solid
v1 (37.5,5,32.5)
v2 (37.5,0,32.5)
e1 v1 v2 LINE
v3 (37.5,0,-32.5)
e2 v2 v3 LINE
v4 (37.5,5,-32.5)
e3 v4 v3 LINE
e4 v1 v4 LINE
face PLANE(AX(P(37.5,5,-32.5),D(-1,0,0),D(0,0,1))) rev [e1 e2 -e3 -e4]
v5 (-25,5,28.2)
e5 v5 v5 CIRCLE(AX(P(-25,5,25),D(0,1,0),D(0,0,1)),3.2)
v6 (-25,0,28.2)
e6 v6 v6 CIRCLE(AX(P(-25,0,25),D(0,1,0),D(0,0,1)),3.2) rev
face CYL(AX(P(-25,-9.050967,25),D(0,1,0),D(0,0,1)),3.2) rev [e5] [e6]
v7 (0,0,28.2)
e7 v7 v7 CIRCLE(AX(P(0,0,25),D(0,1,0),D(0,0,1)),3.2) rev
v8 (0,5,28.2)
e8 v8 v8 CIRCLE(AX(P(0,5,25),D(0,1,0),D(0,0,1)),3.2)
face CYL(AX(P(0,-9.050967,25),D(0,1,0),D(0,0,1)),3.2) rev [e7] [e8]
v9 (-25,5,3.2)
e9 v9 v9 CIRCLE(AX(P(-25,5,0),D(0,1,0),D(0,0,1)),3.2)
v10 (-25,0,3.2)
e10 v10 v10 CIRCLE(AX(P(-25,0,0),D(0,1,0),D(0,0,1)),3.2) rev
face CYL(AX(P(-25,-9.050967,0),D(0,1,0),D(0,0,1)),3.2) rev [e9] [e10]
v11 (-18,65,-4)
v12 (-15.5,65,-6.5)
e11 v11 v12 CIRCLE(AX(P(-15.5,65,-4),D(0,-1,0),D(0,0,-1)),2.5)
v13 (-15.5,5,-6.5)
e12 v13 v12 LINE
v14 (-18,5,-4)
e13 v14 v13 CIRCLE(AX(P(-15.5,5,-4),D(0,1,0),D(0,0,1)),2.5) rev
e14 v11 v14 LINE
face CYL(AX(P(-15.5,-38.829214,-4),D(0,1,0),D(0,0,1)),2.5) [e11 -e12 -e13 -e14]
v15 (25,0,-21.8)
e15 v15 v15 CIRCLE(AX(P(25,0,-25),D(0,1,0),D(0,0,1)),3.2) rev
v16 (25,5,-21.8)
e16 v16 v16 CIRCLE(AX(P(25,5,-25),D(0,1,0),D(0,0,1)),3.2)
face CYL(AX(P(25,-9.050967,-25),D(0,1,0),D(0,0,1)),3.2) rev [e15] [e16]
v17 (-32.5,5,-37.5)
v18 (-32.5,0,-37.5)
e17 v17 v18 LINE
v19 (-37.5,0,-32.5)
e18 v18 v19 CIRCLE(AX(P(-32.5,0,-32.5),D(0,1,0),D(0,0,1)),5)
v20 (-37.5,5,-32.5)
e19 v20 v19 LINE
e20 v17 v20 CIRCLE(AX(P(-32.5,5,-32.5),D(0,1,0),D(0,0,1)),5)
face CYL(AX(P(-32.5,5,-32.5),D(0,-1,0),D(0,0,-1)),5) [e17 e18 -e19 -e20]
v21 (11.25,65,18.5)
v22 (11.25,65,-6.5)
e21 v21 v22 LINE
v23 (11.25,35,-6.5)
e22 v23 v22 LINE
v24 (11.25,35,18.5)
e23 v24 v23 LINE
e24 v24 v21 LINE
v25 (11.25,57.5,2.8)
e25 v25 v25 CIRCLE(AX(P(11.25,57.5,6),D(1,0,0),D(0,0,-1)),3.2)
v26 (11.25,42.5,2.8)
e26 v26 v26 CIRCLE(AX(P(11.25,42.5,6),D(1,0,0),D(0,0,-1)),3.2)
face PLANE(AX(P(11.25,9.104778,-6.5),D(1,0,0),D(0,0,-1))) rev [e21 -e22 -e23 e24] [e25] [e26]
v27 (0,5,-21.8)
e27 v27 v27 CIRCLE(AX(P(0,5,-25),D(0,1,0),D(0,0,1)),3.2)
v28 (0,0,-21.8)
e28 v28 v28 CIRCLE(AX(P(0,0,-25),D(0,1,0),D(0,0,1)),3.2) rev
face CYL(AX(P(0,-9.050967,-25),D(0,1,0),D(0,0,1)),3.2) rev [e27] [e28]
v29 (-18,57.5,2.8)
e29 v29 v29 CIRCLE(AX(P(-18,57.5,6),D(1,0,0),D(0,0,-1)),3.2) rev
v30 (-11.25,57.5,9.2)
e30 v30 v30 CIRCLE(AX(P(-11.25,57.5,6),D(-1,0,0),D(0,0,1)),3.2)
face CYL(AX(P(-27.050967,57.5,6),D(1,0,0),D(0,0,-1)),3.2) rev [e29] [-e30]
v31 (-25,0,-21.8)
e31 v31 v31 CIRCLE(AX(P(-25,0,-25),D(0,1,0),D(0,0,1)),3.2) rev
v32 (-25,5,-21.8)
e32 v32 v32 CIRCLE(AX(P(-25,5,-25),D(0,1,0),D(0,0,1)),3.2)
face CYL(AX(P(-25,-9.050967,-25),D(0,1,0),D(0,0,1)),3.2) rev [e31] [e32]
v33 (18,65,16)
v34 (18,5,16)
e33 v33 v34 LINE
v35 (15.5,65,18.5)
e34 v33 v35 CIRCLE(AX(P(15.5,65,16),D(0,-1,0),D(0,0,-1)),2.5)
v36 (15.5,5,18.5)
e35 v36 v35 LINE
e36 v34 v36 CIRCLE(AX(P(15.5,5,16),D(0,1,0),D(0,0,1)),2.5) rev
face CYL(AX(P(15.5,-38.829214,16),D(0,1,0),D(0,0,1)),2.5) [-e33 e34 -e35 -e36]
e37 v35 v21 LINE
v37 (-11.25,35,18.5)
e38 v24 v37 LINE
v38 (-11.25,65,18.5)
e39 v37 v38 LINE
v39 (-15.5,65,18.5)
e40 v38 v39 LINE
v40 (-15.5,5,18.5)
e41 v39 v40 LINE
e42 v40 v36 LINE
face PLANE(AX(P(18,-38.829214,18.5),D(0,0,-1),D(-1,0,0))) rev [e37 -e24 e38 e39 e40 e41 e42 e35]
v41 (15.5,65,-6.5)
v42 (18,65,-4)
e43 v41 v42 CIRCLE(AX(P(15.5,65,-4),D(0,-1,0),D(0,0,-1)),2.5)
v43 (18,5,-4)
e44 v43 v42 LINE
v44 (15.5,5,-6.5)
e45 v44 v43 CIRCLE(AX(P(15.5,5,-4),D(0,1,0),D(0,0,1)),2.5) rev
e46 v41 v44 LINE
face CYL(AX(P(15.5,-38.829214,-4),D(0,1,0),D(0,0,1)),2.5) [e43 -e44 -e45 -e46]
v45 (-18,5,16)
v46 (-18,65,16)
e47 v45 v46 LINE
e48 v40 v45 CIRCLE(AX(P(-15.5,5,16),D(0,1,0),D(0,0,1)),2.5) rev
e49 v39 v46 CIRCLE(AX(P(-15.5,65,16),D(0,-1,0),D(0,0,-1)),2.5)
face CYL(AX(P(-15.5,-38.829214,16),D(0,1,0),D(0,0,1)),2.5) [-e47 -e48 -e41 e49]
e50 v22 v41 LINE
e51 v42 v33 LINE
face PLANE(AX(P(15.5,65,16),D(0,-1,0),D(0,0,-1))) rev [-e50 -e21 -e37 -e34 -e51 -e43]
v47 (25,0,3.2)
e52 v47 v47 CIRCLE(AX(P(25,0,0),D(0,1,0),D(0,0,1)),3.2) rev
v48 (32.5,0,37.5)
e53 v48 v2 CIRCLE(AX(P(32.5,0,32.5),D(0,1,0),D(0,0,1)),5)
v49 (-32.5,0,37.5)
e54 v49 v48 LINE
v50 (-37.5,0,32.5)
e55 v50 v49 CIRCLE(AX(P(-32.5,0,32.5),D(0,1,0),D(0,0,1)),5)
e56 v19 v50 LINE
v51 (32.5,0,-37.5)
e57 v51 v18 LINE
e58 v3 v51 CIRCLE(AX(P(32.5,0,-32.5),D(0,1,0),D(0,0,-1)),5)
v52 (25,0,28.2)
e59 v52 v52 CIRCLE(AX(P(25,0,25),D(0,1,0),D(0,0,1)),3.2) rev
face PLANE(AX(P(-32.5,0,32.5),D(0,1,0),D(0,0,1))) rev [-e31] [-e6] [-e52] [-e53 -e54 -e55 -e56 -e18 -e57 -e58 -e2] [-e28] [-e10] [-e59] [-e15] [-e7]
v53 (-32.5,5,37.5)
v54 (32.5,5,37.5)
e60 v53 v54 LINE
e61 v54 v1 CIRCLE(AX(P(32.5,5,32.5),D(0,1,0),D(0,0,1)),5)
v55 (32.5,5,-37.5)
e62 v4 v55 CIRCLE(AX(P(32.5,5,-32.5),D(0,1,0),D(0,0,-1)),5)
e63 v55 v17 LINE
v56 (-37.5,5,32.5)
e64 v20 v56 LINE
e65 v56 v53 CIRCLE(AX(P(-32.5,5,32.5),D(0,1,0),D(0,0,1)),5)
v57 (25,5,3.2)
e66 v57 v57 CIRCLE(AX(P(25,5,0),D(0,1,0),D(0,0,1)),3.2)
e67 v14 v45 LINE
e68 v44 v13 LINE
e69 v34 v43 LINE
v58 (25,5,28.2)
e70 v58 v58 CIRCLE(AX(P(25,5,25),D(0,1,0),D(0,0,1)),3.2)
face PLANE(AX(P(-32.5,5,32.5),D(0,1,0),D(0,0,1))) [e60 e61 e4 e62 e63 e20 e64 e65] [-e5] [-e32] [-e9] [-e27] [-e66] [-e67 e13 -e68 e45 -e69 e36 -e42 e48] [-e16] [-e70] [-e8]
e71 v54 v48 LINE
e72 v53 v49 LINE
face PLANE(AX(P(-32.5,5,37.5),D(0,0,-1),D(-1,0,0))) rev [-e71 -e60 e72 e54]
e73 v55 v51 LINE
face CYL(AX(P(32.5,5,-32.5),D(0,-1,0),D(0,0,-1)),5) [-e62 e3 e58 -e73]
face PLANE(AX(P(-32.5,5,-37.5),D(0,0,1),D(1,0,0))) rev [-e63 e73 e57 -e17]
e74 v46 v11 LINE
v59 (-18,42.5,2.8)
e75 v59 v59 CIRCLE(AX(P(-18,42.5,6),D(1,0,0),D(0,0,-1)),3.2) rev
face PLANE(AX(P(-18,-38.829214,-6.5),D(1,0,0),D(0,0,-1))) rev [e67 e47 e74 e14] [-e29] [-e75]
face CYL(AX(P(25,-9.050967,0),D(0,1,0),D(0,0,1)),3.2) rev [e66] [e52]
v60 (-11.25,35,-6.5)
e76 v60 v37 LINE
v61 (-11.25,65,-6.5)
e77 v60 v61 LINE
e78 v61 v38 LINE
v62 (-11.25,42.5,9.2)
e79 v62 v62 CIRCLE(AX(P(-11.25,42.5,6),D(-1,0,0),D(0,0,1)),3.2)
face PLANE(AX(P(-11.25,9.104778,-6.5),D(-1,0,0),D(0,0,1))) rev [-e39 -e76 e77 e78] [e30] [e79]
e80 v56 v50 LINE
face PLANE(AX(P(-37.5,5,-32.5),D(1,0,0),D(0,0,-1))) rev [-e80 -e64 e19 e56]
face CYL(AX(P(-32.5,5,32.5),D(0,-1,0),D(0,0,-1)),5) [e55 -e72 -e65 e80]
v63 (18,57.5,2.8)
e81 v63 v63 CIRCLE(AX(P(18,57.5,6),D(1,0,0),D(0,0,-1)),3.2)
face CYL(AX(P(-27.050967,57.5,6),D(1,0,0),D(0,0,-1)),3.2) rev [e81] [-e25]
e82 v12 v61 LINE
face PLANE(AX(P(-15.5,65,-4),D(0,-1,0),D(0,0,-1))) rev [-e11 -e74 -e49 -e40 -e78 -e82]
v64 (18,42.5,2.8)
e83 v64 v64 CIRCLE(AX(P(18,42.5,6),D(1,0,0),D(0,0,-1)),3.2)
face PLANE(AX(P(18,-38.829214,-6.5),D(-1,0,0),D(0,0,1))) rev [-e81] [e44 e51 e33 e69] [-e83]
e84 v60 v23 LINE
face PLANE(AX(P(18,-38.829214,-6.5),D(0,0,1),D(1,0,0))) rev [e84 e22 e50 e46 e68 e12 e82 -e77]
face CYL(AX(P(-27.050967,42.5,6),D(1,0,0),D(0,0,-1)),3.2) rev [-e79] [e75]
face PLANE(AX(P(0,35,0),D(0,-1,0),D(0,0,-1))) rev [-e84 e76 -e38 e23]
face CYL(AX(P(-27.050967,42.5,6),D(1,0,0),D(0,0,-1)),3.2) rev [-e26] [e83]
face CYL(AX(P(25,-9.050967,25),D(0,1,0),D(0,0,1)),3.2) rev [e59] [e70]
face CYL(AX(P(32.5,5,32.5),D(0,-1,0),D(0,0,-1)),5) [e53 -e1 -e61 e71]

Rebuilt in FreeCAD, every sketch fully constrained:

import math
import FreeCAD as App
import Part
import Sketcher
from FreeCAD import Vector


def edges_at(feature, points):
    """Names of the edges that pass closest to the given points."""
    edges = feature.Shape.Edges
    near = lambda p: min(range(len(edges)), key=lambda i: edges[i].distToShape(Part.Vertex(*p))[0])
    return sorted({f"Edge{near(p) + 1}" for p in points})


def add_polygon(sketch, points):
    """Adds a closed chain of lines whose ends are joined by coincident constraints."""
    first, n = sketch.GeometryCount, len(points)
    for a, b in zip(points, points[1:] + points[:1]):
        sketch.addGeometry(Part.LineSegment(App.Vector(*a, 0), App.Vector(*b, 0)), False)
    for i in range(n):
        sketch.addConstraint(Sketcher.Constraint("Coincident", first + i, 2, first + (i + 1) % n, 1))

doc = App.newDocument("Part")
body = doc.addObject("PartDesign::Body", "Body")

# Sketch on XZ plane
sketch1 = body.newObject("Sketcher::SketchObject", "Sketch")
sketch1.AttachmentSupport = (doc.getObject("XZ_Plane"), [""])
sketch1.MapMode = "FlatFace"
sketch1.addGeometry(Part.LineSegment(Vector(32, -38, 0), Vector(-32, -38, 0)), False)
sketch1.addGeometry(Part.ArcOfCircle(Part.Circle(Vector(-32, -32, 0), Vector(0, 0, 1), 5), math.radians(180), math.radians(270)), False)
sketch1.addGeometry(Part.LineSegment(Vector(-38, -32, 0), Vector(-38, 32, 0)), False)
sketch1.addGeometry(Part.ArcOfCircle(Part.Circle(Vector(-32, 32, 0), Vector(0, 0, 1), 5), math.radians(90), math.radians(180)), False)
sketch1.addGeometry(Part.LineSegment(Vector(-32, 38, 0), Vector(32, 38, 0)), False)
sketch1.addGeometry(Part.ArcOfCircle(Part.Circle(Vector(32, 32, 0), Vector(0, 0, 1), 5), math.radians(0), math.radians(90)), False)
sketch1.addGeometry(Part.LineSegment(Vector(38, 32, 0), Vector(38, -32, 0)), False)
sketch1.addGeometry(Part.ArcOfCircle(Part.Circle(Vector(32, -32, 0), Vector(0, 0, 1), 5), math.radians(-90), math.radians(0)), False)
sketch1.addConstraint(Sketcher.Constraint("Tangent", 0, 2, 1, 2))
sketch1.addConstraint(Sketcher.Constraint("Tangent", 1, 1, 2, 1))
sketch1.addConstraint(Sketcher.Constraint("Tangent", 2, 2, 3, 2))
sketch1.addConstraint(Sketcher.Constraint("Tangent", 3, 1, 4, 1))
sketch1.addConstraint(Sketcher.Constraint("Tangent", 4, 2, 5, 2))
sketch1.addConstraint(Sketcher.Constraint("Tangent", 5, 1, 6, 1))
sketch1.addConstraint(Sketcher.Constraint("Tangent", 6, 2, 7, 2))
sketch1.addConstraint(Sketcher.Constraint("Tangent", 7, 1, 0, 1))
sketch1.addConstraint(Sketcher.Constraint("Horizontal", 0))
sketch1.addConstraint(Sketcher.Constraint("Vertical", 2))
sketch1.addConstraint(Sketcher.Constraint("Horizontal", 4))
sketch1.addConstraint(Sketcher.Constraint("Vertical", 6))
sketch1.addConstraint(Sketcher.Constraint("Equal", 1, 3))
sketch1.addConstraint(Sketcher.Constraint("Equal", 3, 5))
sketch1.addConstraint(Sketcher.Constraint("Equal", 5, 7))
sketch1.addConstraint(Sketcher.Constraint("Symmetric", 1, 3, 5, 3, -1, 1))
sketch1.addConstraint(Sketcher.Constraint("Equal", 4, 2))
sketch1.addConstraint(Sketcher.Constraint("Radius", 1, 5.0))
sketch1.addConstraint(Sketcher.Constraint("DistanceX", 0, 2, 0, 1, 65.0))
pad1 = body.newObject("PartDesign::Pad", "Pad")
pad1.Profile = sketch1
pad1.Length = 5
pad1.Reversed = True

# Sketch on XZ plane
sketch2 = body.newObject("Sketcher::SketchObject", "Sketch001")
sketch2.AttachmentSupport = (doc.getObject("XZ_Plane"), [""])
sketch2.MapMode = "FlatFace"
sketch2.AttachmentOffset = App.Placement(Vector(0, 0, -5), App.Rotation())
sketch2.addGeometry(Part.Circle(Vector(0, -25, 0), Vector(0, 0, 1), 3.2), False)
sketch2.addGeometry(Part.Circle(Vector(-25, -25, 0), Vector(0, 0, 1), 3.2), False)
sketch2.addGeometry(Part.Circle(Vector(-25, 0, 0), Vector(0, 0, 1), 3.2), False)
sketch2.addGeometry(Part.Circle(Vector(-25, 25, 0), Vector(0, 0, 1), 3.2), False)
sketch2.addGeometry(Part.Circle(Vector(0, 25, 0), Vector(0, 0, 1), 3.2), False)
sketch2.addGeometry(Part.Circle(Vector(25, 25, 0), Vector(0, 0, 1), 3.2), False)
sketch2.addGeometry(Part.Circle(Vector(25, 0, 0), Vector(0, 0, 1), 3.2), False)
sketch2.addGeometry(Part.Circle(Vector(25, -25, 0), Vector(0, 0, 1), 3.2), False)
sketch2.addConstraint(Sketcher.Constraint("Equal", 0, 1))
sketch2.addConstraint(Sketcher.Constraint("Equal", 1, 2))
sketch2.addConstraint(Sketcher.Constraint("Equal", 2, 3))
sketch2.addConstraint(Sketcher.Constraint("Equal", 3, 4))
sketch2.addConstraint(Sketcher.Constraint("Equal", 4, 5))
sketch2.addConstraint(Sketcher.Constraint("Equal", 5, 6))
sketch2.addConstraint(Sketcher.Constraint("Equal", 6, 7))
sketch2.addConstraint(Sketcher.Constraint("Symmetric", 0, 3, 4, 3, -1, 1))
sketch2.addConstraint(Sketcher.Constraint("Symmetric", 1, 3, 5, 3, -1, 1))
sketch2.addConstraint(Sketcher.Constraint("Symmetric", 2, 3, 6, 3, -1, 1))
sketch2.addConstraint(Sketcher.Constraint("Symmetric", 3, 3, 7, 3, -1, 1))
sketch2.addConstraint(Sketcher.Constraint("Symmetric", 3, 3, 5, 3, -2))
sketch2.addConstraint(Sketcher.Constraint("PointOnObject", 0, 3, -2))
sketch2.addConstraint(Sketcher.Constraint("PointOnObject", 2, 3, -1))
sketch2.addConstraint(Sketcher.Constraint("Horizontal", 0, 3, 1, 3))
sketch2.addConstraint(Sketcher.Constraint("Vertical", 1, 3, 2, 3))
sketch2.addConstraint(Sketcher.Constraint("Diameter", 0, 6.4))
sketch2.addConstraint(Sketcher.Constraint("DistanceY", 0, 3, -1, 1, 25.0))
sketch2.addConstraint(Sketcher.Constraint("DistanceX", 1, 3, -1, 1, 25.0))
pocket1 = body.newObject("PartDesign::Pocket", "Pocket")
pocket1.Profile = sketch2
pocket1.Length = 5
pocket1.Reversed = True

# Sketch on XZ plane
sketch3 = body.newObject("Sketcher::SketchObject", "Sketch002")
sketch3.AttachmentSupport = (doc.getObject("XZ_Plane"), [""])
sketch3.MapMode = "FlatFace"
sketch3.AttachmentOffset = App.Placement(Vector(0, 0, -35), App.Rotation())
add_polygon(sketch3, [(18, -6), (18, 18), (-18, 18), (-18, -6)])  # lines 0-3
sketch3.addConstraint(Sketcher.Constraint("Vertical", 0))
sketch3.addConstraint(Sketcher.Constraint("Horizontal", 1))
sketch3.addConstraint(Sketcher.Constraint("Vertical", 2))
sketch3.addConstraint(Sketcher.Constraint("Horizontal", 3))
sketch3.addConstraint(Sketcher.Constraint("DistanceX", 1, 2, 1, 1, 36.0))
sketch3.addConstraint(Sketcher.Constraint("DistanceY", 0, 1, 0, 2, 25.0))
sketch3.addConstraint(Sketcher.Constraint("DistanceX", -1, 1, 0, 2, 18.0))
sketch3.addConstraint(Sketcher.Constraint("DistanceY", -1, 1, 0, 2, 18.5))
pad2 = body.newObject("PartDesign::Pad", "Pad001")
pad2.Profile = sketch3
pad2.Length = 30
doc.recompute()

fillet = body.newObject("PartDesign::Fillet", "Fillet")
fillet.Base = (pad2, edges_at(pad2, [
    (-18, 20, -6.5),
    (-18, 20, 18.5),
    (18, 20, 18.5),
    (18, 20, -6.5),
]))
fillet.Radius = 2.5

# Sketch on XZ plane
sketch4 = body.newObject("Sketcher::SketchObject", "Sketch003")
sketch4.AttachmentSupport = (doc.getObject("XZ_Plane"), [""])
sketch4.MapMode = "FlatFace"
sketch4.AttachmentOffset = App.Placement(Vector(0, 0, -65), App.Rotation())
sketch4.addGeometry(Part.LineSegment(Vector(-18, 16, 0), Vector(-18, -4, 0)), False)
sketch4.addGeometry(Part.ArcOfCircle(Part.Circle(Vector(-15.5, -4, 0), Vector(0, 0, 1), 2.5), math.radians(180), math.radians(270)), False)
sketch4.addGeometry(Part.LineSegment(Vector(-15.5, -6.5, 0), Vector(-11.2, -6.5, 0)), False)
sketch4.addGeometry(Part.LineSegment(Vector(-11.2, -6.5, 0), Vector(-11.2, 18.5, 0)), False)
sketch4.addGeometry(Part.LineSegment(Vector(-11.2, 18.5, 0), Vector(-15.5, 18.5, 0)), False)
sketch4.addGeometry(Part.ArcOfCircle(Part.Circle(Vector(-15.5, 16, 0), Vector(0, 0, 1), 2.5), math.radians(90), math.radians(180)), False)
sketch4.addGeometry(Part.LineSegment(Vector(18, -4, 0), Vector(18, 16, 0)), False)
sketch4.addGeometry(Part.ArcOfCircle(Part.Circle(Vector(15.5, 16, 0), Vector(0, 0, 1), 2.5), math.radians(0), math.radians(90)), False)
sketch4.addGeometry(Part.LineSegment(Vector(15.5, 18.5, 0), Vector(11.2, 18.5, 0)), False)
sketch4.addGeometry(Part.LineSegment(Vector(11.2, 18.5, 0), Vector(11.2, -6.5, 0)), False)
sketch4.addGeometry(Part.LineSegment(Vector(11.2, -6.5, 0), Vector(15.5, -6.5, 0)), False)
sketch4.addGeometry(Part.ArcOfCircle(Part.Circle(Vector(15.5, -4, 0), Vector(0, 0, 1), 2.5), math.radians(-90), math.radians(0)), False)
sketch4.addConstraint(Sketcher.Constraint("Tangent", 0, 2, 1, 1))
sketch4.addConstraint(Sketcher.Constraint("Tangent", 1, 2, 2, 1))
sketch4.addConstraint(Sketcher.Constraint("Coincident", 2, 2, 3, 1))
sketch4.addConstraint(Sketcher.Constraint("Coincident", 3, 2, 4, 1))
sketch4.addConstraint(Sketcher.Constraint("Tangent", 4, 2, 5, 1))
sketch4.addConstraint(Sketcher.Constraint("Tangent", 5, 2, 0, 1))
sketch4.addConstraint(Sketcher.Constraint("Tangent", 6, 2, 7, 1))
sketch4.addConstraint(Sketcher.Constraint("Tangent", 7, 2, 8, 1))
sketch4.addConstraint(Sketcher.Constraint("Coincident", 8, 2, 9, 1))
sketch4.addConstraint(Sketcher.Constraint("Coincident", 9, 2, 10, 1))
sketch4.addConstraint(Sketcher.Constraint("Tangent", 10, 2, 11, 1))
sketch4.addConstraint(Sketcher.Constraint("Tangent", 11, 2, 6, 1))
sketch4.addConstraint(Sketcher.Constraint("Vertical", 0))
sketch4.addConstraint(Sketcher.Constraint("Horizontal", 2))
sketch4.addConstraint(Sketcher.Constraint("Vertical", 3))
sketch4.addConstraint(Sketcher.Constraint("Horizontal", 4))
sketch4.addConstraint(Sketcher.Constraint("Vertical", 6))
sketch4.addConstraint(Sketcher.Constraint("Horizontal", 8))
sketch4.addConstraint(Sketcher.Constraint("Vertical", 9))
sketch4.addConstraint(Sketcher.Constraint("Horizontal", 10))
sketch4.addConstraint(Sketcher.Constraint("Equal", 1, 5))
sketch4.addConstraint(Sketcher.Constraint("Equal", 5, 7))
sketch4.addConstraint(Sketcher.Constraint("Equal", 7, 11))
sketch4.addConstraint(Sketcher.Constraint("Symmetric", 5, 3, 7, 3, -2))
sketch4.addConstraint(Sketcher.Constraint("Symmetric", 2, 2, 9, 2, -2))
sketch4.addConstraint(Sketcher.Constraint("Radius", 1, 2.5))
sketch4.addConstraint(Sketcher.Constraint("DistanceY", 0, 2, 0, 1, 20.0))
sketch4.addConstraint(Sketcher.Constraint("DistanceY", 1, 3, -1, 1, 4.0))
sketch4.addConstraint(Sketcher.Constraint("DistanceX", 0, 2, -1, 1, 18.0))
sketch4.addConstraint(Sketcher.Constraint("DistanceX", 2, 1, 2, 2, 4.25))
pad3 = body.newObject("PartDesign::Pad", "Pad002")
pad3.Profile = sketch4
pad3.Length = 30

# Sketch on YZ plane
sketch5 = body.newObject("Sketcher::SketchObject", "Sketch004")
sketch5.AttachmentSupport = (doc.getObject("YZ_Plane"), [""])
sketch5.MapMode = "FlatFace"
sketch5.AttachmentOffset = App.Placement(Vector(0, 0, 18), App.Rotation())
sketch5.addGeometry(Part.Circle(Vector(57.5, 6, 0), Vector(0, 0, 1), 3.2), False)
sketch5.addGeometry(Part.Circle(Vector(42.5, 6, 0), Vector(0, 0, 1), 3.2), False)
sketch5.addConstraint(Sketcher.Constraint("Equal", 0, 1))
sketch5.addConstraint(Sketcher.Constraint("Horizontal", 0, 3, 1, 3))
sketch5.addConstraint(Sketcher.Constraint("Diameter", 0, 6.4))
sketch5.addConstraint(Sketcher.Constraint("DistanceY", -1, 1, 0, 3, 6.0))
sketch5.addConstraint(Sketcher.Constraint("DistanceX", 1, 3, 0, 3, 15.0))
sketch5.addConstraint(Sketcher.Constraint("DistanceX", -1, 1, 0, 3, 57.5))
pocket2 = body.newObject("PartDesign::Pocket", "Pocket001")
pocket2.Profile = sketch5
pocket2.Length = 36

doc.recompute()
